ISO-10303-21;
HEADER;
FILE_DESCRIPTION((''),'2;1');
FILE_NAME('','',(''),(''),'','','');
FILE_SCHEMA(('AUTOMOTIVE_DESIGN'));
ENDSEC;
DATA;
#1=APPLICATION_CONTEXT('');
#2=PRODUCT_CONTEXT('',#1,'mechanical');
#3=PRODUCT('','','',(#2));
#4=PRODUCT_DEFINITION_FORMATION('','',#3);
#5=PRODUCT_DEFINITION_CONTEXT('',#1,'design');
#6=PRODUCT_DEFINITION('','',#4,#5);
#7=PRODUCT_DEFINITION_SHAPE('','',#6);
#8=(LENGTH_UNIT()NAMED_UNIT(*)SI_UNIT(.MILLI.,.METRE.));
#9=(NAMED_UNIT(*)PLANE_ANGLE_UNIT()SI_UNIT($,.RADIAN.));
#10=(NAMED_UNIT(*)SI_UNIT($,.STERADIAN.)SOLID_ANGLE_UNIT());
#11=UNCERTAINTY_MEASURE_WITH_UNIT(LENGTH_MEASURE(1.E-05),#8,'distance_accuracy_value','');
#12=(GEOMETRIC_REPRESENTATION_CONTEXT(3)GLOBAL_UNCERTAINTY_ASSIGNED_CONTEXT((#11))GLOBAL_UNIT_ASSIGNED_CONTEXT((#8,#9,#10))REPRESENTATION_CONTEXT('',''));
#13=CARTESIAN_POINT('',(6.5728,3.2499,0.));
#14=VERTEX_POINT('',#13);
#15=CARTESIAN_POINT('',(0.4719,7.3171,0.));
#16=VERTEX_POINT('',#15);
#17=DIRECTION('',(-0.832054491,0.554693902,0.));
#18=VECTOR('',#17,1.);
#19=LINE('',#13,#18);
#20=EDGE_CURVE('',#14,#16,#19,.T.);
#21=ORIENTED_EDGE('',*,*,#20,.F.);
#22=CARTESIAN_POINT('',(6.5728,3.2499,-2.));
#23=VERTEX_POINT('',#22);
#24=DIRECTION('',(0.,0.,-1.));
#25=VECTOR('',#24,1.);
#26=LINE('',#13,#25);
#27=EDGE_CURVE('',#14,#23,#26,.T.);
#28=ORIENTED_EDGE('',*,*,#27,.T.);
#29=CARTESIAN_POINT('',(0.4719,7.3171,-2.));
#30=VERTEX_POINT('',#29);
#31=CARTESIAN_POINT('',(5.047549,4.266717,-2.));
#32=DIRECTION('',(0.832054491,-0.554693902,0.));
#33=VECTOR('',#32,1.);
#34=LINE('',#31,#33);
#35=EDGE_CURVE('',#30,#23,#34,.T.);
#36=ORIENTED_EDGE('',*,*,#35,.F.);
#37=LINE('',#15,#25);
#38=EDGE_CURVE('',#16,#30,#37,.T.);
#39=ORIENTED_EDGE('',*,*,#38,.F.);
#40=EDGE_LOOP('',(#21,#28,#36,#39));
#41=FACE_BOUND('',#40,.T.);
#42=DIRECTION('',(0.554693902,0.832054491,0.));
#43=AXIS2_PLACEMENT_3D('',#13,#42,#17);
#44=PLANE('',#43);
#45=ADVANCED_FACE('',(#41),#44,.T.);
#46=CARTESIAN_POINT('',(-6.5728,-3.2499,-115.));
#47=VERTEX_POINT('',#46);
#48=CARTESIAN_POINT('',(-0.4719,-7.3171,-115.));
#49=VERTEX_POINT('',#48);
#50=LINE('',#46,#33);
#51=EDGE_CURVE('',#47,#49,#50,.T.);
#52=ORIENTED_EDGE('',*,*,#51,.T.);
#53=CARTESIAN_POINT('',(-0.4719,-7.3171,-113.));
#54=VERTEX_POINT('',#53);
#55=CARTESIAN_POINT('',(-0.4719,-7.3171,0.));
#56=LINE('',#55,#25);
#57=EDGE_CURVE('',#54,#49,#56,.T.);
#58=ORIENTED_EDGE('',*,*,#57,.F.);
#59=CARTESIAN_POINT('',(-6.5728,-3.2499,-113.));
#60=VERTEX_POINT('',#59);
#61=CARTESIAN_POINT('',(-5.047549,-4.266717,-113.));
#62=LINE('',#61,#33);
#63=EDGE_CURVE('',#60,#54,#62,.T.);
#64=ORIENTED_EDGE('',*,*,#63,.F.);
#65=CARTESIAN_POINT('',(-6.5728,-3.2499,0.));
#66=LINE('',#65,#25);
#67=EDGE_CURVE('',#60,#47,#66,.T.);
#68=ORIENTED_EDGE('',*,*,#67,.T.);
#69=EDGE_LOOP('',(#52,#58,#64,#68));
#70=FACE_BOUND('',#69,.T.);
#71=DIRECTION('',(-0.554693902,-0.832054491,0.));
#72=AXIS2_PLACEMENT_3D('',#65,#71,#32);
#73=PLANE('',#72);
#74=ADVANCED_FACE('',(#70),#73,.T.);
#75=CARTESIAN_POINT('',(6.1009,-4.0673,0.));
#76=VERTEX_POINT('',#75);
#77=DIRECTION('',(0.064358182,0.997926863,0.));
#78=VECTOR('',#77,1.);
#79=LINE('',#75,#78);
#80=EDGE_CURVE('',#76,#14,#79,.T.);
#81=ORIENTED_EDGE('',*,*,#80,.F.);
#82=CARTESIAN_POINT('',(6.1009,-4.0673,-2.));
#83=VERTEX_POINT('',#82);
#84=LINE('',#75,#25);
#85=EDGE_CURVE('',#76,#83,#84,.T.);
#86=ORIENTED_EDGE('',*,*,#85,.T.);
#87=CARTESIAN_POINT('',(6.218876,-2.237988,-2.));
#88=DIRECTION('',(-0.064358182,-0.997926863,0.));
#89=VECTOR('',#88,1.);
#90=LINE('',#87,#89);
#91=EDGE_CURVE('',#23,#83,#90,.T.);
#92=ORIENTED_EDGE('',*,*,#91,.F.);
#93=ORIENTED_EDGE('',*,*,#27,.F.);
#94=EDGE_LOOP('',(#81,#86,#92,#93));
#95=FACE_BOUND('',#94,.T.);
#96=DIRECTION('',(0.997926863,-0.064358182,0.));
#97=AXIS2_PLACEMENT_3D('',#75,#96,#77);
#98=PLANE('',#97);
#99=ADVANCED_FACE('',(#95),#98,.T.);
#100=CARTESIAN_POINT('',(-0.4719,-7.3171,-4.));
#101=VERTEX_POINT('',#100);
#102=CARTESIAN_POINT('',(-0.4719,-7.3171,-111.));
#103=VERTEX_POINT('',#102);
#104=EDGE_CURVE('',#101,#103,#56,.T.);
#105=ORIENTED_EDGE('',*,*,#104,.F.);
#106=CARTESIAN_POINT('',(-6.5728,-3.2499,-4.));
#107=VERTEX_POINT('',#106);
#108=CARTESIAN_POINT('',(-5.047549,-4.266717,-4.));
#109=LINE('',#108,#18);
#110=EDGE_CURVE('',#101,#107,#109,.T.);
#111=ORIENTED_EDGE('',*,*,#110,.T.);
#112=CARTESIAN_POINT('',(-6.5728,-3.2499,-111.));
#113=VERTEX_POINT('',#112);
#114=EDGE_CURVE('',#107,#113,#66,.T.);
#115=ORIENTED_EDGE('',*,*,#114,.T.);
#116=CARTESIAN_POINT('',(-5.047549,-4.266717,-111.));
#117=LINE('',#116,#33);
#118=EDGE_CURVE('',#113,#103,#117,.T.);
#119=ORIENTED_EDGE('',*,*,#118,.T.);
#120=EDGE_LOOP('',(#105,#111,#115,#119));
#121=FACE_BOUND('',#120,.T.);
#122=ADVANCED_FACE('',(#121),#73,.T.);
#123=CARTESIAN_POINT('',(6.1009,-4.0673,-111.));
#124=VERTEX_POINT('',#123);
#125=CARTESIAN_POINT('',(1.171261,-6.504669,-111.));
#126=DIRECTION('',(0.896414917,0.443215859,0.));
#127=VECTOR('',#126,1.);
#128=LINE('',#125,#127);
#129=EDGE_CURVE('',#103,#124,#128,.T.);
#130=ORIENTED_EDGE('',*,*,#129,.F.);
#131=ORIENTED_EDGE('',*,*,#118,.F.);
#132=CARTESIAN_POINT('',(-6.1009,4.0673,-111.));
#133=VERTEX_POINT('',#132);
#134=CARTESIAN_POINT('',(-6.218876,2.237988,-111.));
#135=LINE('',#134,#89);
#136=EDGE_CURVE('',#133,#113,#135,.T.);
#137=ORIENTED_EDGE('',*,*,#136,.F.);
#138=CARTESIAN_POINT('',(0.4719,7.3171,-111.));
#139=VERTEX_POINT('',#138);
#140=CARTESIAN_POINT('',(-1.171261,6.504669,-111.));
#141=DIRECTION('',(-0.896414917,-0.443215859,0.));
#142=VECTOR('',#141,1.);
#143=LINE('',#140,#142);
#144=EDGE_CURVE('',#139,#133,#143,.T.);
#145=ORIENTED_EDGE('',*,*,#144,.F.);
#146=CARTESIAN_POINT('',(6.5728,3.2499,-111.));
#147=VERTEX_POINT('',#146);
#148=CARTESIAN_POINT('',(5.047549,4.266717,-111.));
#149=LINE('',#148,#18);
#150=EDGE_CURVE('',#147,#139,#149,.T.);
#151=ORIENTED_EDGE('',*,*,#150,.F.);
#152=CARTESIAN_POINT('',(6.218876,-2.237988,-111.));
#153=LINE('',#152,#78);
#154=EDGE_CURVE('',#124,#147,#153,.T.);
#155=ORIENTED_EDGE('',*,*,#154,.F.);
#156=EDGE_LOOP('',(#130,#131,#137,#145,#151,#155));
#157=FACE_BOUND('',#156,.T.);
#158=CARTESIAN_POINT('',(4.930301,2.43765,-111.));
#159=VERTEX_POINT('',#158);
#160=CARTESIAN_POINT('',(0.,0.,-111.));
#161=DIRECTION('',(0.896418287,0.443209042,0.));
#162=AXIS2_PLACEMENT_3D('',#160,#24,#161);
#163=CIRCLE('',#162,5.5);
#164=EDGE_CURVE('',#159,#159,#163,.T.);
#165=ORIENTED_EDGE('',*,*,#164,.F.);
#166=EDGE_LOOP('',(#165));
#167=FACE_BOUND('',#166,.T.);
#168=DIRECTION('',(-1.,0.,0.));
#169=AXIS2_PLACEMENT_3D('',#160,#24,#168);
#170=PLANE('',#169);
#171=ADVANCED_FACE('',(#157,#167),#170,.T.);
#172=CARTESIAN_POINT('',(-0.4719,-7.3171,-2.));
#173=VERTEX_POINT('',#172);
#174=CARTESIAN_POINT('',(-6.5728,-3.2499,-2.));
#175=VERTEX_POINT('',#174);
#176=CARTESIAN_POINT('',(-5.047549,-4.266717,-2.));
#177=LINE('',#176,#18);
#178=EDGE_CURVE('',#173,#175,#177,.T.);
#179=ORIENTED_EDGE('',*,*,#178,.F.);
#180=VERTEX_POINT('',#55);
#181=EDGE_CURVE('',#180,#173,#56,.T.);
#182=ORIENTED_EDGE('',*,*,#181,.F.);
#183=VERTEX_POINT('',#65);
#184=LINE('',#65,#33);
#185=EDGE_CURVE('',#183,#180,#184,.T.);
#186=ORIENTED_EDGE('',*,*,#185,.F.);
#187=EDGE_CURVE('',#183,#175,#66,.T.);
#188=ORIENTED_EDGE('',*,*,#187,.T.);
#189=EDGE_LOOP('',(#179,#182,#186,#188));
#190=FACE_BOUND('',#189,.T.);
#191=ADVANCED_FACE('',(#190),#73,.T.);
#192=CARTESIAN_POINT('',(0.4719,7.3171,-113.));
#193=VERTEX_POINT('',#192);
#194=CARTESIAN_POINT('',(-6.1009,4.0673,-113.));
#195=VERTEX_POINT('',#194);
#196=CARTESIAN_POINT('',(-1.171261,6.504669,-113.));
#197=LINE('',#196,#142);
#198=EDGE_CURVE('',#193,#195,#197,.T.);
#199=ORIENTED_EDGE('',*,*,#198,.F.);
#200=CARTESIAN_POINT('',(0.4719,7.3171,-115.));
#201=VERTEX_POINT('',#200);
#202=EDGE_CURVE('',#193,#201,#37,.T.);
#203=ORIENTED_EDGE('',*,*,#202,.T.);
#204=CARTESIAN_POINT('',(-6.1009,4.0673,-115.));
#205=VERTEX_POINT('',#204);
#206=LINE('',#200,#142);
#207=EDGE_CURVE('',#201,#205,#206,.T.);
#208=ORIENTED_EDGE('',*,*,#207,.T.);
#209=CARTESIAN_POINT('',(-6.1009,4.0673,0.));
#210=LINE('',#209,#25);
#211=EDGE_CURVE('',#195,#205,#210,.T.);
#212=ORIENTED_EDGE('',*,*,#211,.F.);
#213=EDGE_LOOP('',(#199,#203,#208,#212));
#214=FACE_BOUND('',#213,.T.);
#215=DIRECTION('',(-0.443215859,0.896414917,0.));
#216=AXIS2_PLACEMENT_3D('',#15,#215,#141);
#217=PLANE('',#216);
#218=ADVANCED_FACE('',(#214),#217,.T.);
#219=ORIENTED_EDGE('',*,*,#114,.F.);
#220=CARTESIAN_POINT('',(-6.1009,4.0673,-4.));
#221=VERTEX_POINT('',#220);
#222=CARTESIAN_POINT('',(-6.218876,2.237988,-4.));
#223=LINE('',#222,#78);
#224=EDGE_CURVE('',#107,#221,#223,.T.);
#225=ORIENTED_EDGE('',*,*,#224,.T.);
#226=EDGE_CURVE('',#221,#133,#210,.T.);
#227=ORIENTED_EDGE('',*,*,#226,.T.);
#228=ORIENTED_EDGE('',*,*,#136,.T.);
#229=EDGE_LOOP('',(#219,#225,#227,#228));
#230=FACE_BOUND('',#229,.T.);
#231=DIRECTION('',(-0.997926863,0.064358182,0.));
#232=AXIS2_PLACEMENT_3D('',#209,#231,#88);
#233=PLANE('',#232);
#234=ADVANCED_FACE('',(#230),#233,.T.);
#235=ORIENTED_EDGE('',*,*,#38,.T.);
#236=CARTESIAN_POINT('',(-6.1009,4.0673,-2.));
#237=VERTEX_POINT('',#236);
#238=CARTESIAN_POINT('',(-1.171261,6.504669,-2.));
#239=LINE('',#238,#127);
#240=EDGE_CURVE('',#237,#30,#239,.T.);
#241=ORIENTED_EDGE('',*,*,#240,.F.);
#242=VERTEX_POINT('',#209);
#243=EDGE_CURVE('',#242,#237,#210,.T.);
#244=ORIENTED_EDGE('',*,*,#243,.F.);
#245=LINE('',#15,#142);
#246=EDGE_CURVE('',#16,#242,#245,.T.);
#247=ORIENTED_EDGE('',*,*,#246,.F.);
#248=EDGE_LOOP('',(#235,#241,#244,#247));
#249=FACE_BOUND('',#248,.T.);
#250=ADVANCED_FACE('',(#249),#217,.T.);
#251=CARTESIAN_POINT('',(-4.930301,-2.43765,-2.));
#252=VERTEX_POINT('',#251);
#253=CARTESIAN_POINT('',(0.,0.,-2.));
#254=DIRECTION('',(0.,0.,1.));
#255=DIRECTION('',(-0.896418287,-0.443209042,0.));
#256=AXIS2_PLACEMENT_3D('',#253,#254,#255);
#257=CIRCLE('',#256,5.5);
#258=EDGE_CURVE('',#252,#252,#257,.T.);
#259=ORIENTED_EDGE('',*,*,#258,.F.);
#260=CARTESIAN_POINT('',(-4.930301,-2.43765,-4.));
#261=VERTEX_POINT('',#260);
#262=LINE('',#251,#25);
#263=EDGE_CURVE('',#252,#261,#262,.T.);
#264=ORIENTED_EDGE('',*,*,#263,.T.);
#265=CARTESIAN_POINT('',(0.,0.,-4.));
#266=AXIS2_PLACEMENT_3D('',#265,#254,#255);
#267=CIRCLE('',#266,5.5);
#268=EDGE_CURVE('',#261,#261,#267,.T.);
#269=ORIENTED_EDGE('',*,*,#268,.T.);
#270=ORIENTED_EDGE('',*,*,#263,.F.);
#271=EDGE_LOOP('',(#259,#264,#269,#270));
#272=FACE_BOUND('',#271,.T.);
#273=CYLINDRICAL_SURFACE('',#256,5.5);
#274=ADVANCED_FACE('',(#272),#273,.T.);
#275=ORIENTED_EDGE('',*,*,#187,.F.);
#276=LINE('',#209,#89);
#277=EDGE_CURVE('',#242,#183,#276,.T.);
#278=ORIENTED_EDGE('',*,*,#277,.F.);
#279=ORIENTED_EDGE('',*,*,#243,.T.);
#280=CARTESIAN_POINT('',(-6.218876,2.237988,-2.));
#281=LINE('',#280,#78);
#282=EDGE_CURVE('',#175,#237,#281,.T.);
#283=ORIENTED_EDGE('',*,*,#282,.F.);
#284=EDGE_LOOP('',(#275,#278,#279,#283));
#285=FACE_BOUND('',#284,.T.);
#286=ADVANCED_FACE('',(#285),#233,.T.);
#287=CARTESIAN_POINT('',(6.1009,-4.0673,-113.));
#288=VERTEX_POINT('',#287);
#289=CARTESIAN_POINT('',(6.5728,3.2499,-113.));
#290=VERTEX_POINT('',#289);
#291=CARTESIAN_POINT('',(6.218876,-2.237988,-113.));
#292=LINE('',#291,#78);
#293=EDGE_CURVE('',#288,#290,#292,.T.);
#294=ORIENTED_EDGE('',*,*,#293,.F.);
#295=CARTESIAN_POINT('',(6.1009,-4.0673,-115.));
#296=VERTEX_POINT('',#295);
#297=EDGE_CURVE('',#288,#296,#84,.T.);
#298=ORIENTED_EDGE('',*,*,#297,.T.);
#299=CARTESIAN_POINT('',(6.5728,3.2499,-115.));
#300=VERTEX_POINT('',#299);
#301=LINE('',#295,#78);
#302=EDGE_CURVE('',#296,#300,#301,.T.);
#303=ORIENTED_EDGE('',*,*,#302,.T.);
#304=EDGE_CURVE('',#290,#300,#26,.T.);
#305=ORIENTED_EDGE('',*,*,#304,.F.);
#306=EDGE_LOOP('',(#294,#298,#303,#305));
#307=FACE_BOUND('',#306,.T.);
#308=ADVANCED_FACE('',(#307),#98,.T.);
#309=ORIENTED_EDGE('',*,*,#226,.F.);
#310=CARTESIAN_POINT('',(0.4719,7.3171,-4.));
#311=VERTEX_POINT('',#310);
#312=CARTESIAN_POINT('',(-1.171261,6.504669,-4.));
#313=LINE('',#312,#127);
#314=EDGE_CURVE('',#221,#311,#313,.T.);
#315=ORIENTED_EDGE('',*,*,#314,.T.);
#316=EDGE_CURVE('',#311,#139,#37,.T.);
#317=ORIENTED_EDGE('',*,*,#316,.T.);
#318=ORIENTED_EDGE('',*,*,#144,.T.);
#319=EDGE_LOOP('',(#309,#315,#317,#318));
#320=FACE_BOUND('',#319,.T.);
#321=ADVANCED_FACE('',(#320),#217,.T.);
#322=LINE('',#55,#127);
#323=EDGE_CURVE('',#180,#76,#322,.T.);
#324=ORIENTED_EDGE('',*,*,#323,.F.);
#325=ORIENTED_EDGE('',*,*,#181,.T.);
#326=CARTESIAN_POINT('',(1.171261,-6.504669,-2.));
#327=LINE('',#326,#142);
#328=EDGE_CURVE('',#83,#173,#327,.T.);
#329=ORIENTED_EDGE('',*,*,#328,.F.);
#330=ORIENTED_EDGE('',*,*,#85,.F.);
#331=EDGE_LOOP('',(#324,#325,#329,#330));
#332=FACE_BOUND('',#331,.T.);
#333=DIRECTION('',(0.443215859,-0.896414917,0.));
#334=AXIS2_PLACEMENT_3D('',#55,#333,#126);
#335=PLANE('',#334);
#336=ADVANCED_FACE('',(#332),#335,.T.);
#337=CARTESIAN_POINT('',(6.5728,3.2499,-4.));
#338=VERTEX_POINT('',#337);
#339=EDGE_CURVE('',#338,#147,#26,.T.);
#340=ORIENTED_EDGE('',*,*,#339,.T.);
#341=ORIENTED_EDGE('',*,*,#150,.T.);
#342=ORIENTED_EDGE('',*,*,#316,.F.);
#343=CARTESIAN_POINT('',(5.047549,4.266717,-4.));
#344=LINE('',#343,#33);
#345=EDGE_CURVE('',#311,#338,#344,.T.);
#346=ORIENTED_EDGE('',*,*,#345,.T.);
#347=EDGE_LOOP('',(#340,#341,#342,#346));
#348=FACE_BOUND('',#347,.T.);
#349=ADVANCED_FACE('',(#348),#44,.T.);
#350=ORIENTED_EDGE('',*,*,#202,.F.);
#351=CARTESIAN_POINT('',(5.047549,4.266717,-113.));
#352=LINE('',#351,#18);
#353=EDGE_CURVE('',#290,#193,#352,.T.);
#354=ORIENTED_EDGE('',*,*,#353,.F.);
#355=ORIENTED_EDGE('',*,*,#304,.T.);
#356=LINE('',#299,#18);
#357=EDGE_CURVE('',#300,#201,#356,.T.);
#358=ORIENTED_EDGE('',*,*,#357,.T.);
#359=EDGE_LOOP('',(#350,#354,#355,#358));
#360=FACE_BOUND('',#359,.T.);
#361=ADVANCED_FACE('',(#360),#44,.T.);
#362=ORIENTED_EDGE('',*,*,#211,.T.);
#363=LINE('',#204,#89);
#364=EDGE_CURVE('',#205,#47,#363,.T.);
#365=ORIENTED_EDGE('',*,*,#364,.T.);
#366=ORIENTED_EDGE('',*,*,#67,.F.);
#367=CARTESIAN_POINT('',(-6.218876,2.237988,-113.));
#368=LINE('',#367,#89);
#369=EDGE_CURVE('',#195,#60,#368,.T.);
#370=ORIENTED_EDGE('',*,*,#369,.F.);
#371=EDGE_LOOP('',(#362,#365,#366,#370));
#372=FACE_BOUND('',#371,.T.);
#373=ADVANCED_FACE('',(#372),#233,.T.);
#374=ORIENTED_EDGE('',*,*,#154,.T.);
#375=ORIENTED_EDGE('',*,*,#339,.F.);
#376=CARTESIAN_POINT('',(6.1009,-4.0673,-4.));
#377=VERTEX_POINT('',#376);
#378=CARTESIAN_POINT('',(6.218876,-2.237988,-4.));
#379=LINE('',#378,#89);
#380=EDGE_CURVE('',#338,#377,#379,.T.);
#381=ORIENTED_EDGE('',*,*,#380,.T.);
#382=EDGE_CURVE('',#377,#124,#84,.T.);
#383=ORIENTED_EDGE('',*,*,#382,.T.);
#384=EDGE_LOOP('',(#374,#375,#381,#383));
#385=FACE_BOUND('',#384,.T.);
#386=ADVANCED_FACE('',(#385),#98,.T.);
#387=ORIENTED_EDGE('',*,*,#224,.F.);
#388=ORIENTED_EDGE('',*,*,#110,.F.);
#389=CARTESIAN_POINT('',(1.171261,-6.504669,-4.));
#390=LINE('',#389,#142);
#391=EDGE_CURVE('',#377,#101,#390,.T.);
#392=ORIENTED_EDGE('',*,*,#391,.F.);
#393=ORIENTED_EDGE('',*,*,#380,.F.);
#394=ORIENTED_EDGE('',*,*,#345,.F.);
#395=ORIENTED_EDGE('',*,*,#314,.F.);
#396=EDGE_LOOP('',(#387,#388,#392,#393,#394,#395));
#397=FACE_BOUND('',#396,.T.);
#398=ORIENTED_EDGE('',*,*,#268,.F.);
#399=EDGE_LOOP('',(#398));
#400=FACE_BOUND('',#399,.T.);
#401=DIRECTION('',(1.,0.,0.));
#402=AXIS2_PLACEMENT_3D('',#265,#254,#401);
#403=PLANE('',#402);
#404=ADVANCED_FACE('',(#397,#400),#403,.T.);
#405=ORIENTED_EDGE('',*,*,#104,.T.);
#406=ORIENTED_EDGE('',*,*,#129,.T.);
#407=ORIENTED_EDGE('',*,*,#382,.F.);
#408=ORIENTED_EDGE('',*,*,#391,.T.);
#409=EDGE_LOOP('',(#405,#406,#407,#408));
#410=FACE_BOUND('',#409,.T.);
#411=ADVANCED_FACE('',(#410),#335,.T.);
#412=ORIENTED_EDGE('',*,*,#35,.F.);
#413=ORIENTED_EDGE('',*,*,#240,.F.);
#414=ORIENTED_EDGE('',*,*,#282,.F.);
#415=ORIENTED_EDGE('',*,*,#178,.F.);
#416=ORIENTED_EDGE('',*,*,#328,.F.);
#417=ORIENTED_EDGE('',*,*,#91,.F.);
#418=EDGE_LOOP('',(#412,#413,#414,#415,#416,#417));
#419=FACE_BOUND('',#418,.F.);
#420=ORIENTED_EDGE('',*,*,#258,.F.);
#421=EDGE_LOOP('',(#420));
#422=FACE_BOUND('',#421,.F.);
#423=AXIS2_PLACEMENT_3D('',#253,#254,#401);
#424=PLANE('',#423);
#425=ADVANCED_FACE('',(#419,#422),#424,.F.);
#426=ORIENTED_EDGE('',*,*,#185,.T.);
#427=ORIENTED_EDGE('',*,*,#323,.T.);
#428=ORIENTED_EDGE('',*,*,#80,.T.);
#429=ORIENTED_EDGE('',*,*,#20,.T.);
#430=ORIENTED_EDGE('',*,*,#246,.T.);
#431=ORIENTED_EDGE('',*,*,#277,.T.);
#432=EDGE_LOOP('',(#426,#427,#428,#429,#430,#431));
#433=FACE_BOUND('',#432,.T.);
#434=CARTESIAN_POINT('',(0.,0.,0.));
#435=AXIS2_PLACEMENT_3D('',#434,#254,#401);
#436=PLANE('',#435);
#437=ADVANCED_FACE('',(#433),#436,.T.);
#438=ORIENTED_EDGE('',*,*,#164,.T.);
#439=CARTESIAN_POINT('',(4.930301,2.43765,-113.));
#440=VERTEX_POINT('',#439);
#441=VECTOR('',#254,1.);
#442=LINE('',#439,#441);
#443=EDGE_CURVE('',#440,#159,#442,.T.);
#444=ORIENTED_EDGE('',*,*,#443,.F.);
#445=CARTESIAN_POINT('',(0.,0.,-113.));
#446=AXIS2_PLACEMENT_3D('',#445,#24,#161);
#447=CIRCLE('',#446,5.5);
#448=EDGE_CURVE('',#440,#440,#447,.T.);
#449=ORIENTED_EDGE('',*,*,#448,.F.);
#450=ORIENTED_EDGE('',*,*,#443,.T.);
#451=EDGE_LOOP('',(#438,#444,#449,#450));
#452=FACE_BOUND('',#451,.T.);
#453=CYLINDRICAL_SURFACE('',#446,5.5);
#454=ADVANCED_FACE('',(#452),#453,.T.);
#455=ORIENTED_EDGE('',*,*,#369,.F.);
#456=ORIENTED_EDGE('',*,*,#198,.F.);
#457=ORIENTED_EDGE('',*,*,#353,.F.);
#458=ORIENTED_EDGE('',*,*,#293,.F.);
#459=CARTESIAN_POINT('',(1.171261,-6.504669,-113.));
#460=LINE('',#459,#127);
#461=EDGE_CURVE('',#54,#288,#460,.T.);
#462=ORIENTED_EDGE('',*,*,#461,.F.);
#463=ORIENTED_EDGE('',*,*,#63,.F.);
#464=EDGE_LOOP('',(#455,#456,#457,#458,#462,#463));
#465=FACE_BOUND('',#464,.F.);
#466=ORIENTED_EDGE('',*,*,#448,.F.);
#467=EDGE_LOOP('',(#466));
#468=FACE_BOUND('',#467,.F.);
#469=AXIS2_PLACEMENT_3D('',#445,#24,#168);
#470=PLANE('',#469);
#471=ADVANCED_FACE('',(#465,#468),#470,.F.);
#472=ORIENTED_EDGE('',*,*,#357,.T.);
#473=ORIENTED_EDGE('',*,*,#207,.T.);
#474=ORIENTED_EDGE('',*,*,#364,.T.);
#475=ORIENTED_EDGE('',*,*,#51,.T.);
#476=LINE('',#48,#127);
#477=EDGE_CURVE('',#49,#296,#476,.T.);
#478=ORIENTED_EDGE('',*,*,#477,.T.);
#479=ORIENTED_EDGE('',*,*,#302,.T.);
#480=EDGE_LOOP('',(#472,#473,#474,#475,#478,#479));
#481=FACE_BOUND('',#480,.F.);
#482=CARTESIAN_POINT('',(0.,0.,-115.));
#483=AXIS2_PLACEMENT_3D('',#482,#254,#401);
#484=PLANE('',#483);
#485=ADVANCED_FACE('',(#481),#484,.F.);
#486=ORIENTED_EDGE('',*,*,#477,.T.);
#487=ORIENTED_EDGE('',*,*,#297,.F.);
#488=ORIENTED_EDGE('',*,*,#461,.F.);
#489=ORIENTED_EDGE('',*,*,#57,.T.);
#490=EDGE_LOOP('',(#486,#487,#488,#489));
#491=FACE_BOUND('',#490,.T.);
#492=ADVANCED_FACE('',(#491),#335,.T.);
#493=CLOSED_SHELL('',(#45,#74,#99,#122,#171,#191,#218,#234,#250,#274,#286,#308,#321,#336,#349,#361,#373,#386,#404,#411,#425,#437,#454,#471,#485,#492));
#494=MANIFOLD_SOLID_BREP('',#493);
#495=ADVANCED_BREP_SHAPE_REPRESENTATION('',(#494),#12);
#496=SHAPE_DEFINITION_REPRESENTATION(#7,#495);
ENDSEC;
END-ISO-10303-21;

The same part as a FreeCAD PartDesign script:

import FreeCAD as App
import Part
import Sketcher
from FreeCAD import Vector
Q = App.Units.Quantity

doc = App.newDocument("Part")
body = doc.addObject("PartDesign::Body", "Body")

# Sketch on XY plane
sketch1 = body.newObject("Sketcher::SketchObject", "Sketch")
sketch1.AttachmentSupport = (doc.getObject("XY_Plane"), [""])
sketch1.MapMode = "FlatFace"
sketch1.addGeometry([
    Part.LineSegment(Vector(0.4719, 7.3171, 0), Vector(-6.1009, 4.0673, 0)),  # 0
    Part.LineSegment(Vector(-6.1009, 4.0673, 0), Vector(-6.5728, -3.2499, 0)),  # 1
    Part.LineSegment(Vector(-6.5728, -3.2499, 0), Vector(-0.4719, -7.3171, 0)),  # 2
    Part.LineSegment(Vector(-0.4719, -7.3171, 0), Vector(6.1009, -4.0673, 0)),  # 3
    Part.LineSegment(Vector(6.1009, -4.0673, 0), Vector(6.5728, 3.2499, 0)),  # 4
    Part.LineSegment(Vector(6.5728, 3.2499, 0), Vector(0.4719, 7.3171, 0)),  # 5
], False)
sketch1.addConstraint([
    Sketcher.Constraint("Coincident", 0, 2, 1, 1),
    Sketcher.Constraint("Coincident", 1, 2, 2, 1),
    Sketcher.Constraint("Coincident", 2, 2, 3, 1),
    Sketcher.Constraint("Coincident", 3, 2, 4, 1),
    Sketcher.Constraint("Coincident", 4, 2, 5, 1),
    Sketcher.Constraint("Coincident", 5, 2, 0, 1),
    Sketcher.Constraint("Symmetric", 0, 2, 3, 2, -1, 1),
    Sketcher.Constraint("Symmetric", 1, 2, 4, 2, -1, 1),
    Sketcher.Constraint("Symmetric", 2, 2, 5, 2, -1, 1),
    Sketcher.Constraint("Equal", 0, 1),
    Sketcher.Constraint("Equal", 1, 2),
    Sketcher.Constraint("Angle", 0, Q("-153.6908 deg")),
    Sketcher.Constraint("Angle", 1, Q("-93.69 deg")),
    Sketcher.Constraint("Angle", 2, Q("-33.6896 deg")),
    Sketcher.Constraint("DistanceY", 1, 2, -1, 1, 3.25),
])
pad1 = body.newObject("PartDesign::Pad", "Pad")
pad1.Profile = sketch1
pad1.Length = 115
pad1.Reversed = True

# Sketch on XY plane
sketch2 = body.newObject("Sketcher::SketchObject", "Sketch001")
sketch2.AttachmentSupport = (doc.getObject("XY_Plane"), [""])
sketch2.MapMode = "FlatFace"
sketch2.AttachmentOffset = App.Placement(Vector(0, 0, -2), App.Rotation())
sketch2.addGeometry([
    Part.Circle(Vector(0, 0, 0), Vector(0, 0, 1), 13.1424),
    Part.Circle(Vector(0, 0, 0), Vector(0, 0, 1), 5.5),
], False)
sketch2.addConstraint([
    Sketcher.Constraint("Coincident", 0, 3, -1, 1),
    Sketcher.Constraint("Coincident", 1, 3, -1, 1),
    Sketcher.Constraint("Diameter", 1, 11.0),
    Sketcher.Constraint("Diameter", 0, 26.2848),
])
pocket1 = body.newObject("PartDesign::Pocket", "Pocket")
pocket1.Profile = sketch2
pocket1.Length = 2

# Sketch on XY plane
sketch3 = body.newObject("Sketcher::SketchObject", "Sketch002")
sketch3.AttachmentSupport = (doc.getObject("XY_Plane"), [""])
sketch3.MapMode = "FlatFace"
sketch3.AttachmentOffset = App.Placement(Vector(0, 0, -113), App.Rotation())
sketch3.addGeometry([
    Part.Circle(Vector(0, 0, 0), Vector(0, 0, 1), 13.1424),
    Part.Circle(Vector(0, 0, 0), Vector(0, 0, 1), 5.5),
], False)
sketch3.addConstraint([
    Sketcher.Constraint("Coincident", 0, 3, -1, 1),
    Sketcher.Constraint("Coincident", 1, 3, -1, 1),
    Sketcher.Constraint("Diameter", 1, 11.0),
    Sketcher.Constraint("Diameter", 0, 26.2848),
])
pocket2 = body.newObject("PartDesign::Pocket", "Pocket001")
pocket2.Profile = sketch3
pocket2.Length = 2
pocket2.Reversed = True

doc.recompute()
